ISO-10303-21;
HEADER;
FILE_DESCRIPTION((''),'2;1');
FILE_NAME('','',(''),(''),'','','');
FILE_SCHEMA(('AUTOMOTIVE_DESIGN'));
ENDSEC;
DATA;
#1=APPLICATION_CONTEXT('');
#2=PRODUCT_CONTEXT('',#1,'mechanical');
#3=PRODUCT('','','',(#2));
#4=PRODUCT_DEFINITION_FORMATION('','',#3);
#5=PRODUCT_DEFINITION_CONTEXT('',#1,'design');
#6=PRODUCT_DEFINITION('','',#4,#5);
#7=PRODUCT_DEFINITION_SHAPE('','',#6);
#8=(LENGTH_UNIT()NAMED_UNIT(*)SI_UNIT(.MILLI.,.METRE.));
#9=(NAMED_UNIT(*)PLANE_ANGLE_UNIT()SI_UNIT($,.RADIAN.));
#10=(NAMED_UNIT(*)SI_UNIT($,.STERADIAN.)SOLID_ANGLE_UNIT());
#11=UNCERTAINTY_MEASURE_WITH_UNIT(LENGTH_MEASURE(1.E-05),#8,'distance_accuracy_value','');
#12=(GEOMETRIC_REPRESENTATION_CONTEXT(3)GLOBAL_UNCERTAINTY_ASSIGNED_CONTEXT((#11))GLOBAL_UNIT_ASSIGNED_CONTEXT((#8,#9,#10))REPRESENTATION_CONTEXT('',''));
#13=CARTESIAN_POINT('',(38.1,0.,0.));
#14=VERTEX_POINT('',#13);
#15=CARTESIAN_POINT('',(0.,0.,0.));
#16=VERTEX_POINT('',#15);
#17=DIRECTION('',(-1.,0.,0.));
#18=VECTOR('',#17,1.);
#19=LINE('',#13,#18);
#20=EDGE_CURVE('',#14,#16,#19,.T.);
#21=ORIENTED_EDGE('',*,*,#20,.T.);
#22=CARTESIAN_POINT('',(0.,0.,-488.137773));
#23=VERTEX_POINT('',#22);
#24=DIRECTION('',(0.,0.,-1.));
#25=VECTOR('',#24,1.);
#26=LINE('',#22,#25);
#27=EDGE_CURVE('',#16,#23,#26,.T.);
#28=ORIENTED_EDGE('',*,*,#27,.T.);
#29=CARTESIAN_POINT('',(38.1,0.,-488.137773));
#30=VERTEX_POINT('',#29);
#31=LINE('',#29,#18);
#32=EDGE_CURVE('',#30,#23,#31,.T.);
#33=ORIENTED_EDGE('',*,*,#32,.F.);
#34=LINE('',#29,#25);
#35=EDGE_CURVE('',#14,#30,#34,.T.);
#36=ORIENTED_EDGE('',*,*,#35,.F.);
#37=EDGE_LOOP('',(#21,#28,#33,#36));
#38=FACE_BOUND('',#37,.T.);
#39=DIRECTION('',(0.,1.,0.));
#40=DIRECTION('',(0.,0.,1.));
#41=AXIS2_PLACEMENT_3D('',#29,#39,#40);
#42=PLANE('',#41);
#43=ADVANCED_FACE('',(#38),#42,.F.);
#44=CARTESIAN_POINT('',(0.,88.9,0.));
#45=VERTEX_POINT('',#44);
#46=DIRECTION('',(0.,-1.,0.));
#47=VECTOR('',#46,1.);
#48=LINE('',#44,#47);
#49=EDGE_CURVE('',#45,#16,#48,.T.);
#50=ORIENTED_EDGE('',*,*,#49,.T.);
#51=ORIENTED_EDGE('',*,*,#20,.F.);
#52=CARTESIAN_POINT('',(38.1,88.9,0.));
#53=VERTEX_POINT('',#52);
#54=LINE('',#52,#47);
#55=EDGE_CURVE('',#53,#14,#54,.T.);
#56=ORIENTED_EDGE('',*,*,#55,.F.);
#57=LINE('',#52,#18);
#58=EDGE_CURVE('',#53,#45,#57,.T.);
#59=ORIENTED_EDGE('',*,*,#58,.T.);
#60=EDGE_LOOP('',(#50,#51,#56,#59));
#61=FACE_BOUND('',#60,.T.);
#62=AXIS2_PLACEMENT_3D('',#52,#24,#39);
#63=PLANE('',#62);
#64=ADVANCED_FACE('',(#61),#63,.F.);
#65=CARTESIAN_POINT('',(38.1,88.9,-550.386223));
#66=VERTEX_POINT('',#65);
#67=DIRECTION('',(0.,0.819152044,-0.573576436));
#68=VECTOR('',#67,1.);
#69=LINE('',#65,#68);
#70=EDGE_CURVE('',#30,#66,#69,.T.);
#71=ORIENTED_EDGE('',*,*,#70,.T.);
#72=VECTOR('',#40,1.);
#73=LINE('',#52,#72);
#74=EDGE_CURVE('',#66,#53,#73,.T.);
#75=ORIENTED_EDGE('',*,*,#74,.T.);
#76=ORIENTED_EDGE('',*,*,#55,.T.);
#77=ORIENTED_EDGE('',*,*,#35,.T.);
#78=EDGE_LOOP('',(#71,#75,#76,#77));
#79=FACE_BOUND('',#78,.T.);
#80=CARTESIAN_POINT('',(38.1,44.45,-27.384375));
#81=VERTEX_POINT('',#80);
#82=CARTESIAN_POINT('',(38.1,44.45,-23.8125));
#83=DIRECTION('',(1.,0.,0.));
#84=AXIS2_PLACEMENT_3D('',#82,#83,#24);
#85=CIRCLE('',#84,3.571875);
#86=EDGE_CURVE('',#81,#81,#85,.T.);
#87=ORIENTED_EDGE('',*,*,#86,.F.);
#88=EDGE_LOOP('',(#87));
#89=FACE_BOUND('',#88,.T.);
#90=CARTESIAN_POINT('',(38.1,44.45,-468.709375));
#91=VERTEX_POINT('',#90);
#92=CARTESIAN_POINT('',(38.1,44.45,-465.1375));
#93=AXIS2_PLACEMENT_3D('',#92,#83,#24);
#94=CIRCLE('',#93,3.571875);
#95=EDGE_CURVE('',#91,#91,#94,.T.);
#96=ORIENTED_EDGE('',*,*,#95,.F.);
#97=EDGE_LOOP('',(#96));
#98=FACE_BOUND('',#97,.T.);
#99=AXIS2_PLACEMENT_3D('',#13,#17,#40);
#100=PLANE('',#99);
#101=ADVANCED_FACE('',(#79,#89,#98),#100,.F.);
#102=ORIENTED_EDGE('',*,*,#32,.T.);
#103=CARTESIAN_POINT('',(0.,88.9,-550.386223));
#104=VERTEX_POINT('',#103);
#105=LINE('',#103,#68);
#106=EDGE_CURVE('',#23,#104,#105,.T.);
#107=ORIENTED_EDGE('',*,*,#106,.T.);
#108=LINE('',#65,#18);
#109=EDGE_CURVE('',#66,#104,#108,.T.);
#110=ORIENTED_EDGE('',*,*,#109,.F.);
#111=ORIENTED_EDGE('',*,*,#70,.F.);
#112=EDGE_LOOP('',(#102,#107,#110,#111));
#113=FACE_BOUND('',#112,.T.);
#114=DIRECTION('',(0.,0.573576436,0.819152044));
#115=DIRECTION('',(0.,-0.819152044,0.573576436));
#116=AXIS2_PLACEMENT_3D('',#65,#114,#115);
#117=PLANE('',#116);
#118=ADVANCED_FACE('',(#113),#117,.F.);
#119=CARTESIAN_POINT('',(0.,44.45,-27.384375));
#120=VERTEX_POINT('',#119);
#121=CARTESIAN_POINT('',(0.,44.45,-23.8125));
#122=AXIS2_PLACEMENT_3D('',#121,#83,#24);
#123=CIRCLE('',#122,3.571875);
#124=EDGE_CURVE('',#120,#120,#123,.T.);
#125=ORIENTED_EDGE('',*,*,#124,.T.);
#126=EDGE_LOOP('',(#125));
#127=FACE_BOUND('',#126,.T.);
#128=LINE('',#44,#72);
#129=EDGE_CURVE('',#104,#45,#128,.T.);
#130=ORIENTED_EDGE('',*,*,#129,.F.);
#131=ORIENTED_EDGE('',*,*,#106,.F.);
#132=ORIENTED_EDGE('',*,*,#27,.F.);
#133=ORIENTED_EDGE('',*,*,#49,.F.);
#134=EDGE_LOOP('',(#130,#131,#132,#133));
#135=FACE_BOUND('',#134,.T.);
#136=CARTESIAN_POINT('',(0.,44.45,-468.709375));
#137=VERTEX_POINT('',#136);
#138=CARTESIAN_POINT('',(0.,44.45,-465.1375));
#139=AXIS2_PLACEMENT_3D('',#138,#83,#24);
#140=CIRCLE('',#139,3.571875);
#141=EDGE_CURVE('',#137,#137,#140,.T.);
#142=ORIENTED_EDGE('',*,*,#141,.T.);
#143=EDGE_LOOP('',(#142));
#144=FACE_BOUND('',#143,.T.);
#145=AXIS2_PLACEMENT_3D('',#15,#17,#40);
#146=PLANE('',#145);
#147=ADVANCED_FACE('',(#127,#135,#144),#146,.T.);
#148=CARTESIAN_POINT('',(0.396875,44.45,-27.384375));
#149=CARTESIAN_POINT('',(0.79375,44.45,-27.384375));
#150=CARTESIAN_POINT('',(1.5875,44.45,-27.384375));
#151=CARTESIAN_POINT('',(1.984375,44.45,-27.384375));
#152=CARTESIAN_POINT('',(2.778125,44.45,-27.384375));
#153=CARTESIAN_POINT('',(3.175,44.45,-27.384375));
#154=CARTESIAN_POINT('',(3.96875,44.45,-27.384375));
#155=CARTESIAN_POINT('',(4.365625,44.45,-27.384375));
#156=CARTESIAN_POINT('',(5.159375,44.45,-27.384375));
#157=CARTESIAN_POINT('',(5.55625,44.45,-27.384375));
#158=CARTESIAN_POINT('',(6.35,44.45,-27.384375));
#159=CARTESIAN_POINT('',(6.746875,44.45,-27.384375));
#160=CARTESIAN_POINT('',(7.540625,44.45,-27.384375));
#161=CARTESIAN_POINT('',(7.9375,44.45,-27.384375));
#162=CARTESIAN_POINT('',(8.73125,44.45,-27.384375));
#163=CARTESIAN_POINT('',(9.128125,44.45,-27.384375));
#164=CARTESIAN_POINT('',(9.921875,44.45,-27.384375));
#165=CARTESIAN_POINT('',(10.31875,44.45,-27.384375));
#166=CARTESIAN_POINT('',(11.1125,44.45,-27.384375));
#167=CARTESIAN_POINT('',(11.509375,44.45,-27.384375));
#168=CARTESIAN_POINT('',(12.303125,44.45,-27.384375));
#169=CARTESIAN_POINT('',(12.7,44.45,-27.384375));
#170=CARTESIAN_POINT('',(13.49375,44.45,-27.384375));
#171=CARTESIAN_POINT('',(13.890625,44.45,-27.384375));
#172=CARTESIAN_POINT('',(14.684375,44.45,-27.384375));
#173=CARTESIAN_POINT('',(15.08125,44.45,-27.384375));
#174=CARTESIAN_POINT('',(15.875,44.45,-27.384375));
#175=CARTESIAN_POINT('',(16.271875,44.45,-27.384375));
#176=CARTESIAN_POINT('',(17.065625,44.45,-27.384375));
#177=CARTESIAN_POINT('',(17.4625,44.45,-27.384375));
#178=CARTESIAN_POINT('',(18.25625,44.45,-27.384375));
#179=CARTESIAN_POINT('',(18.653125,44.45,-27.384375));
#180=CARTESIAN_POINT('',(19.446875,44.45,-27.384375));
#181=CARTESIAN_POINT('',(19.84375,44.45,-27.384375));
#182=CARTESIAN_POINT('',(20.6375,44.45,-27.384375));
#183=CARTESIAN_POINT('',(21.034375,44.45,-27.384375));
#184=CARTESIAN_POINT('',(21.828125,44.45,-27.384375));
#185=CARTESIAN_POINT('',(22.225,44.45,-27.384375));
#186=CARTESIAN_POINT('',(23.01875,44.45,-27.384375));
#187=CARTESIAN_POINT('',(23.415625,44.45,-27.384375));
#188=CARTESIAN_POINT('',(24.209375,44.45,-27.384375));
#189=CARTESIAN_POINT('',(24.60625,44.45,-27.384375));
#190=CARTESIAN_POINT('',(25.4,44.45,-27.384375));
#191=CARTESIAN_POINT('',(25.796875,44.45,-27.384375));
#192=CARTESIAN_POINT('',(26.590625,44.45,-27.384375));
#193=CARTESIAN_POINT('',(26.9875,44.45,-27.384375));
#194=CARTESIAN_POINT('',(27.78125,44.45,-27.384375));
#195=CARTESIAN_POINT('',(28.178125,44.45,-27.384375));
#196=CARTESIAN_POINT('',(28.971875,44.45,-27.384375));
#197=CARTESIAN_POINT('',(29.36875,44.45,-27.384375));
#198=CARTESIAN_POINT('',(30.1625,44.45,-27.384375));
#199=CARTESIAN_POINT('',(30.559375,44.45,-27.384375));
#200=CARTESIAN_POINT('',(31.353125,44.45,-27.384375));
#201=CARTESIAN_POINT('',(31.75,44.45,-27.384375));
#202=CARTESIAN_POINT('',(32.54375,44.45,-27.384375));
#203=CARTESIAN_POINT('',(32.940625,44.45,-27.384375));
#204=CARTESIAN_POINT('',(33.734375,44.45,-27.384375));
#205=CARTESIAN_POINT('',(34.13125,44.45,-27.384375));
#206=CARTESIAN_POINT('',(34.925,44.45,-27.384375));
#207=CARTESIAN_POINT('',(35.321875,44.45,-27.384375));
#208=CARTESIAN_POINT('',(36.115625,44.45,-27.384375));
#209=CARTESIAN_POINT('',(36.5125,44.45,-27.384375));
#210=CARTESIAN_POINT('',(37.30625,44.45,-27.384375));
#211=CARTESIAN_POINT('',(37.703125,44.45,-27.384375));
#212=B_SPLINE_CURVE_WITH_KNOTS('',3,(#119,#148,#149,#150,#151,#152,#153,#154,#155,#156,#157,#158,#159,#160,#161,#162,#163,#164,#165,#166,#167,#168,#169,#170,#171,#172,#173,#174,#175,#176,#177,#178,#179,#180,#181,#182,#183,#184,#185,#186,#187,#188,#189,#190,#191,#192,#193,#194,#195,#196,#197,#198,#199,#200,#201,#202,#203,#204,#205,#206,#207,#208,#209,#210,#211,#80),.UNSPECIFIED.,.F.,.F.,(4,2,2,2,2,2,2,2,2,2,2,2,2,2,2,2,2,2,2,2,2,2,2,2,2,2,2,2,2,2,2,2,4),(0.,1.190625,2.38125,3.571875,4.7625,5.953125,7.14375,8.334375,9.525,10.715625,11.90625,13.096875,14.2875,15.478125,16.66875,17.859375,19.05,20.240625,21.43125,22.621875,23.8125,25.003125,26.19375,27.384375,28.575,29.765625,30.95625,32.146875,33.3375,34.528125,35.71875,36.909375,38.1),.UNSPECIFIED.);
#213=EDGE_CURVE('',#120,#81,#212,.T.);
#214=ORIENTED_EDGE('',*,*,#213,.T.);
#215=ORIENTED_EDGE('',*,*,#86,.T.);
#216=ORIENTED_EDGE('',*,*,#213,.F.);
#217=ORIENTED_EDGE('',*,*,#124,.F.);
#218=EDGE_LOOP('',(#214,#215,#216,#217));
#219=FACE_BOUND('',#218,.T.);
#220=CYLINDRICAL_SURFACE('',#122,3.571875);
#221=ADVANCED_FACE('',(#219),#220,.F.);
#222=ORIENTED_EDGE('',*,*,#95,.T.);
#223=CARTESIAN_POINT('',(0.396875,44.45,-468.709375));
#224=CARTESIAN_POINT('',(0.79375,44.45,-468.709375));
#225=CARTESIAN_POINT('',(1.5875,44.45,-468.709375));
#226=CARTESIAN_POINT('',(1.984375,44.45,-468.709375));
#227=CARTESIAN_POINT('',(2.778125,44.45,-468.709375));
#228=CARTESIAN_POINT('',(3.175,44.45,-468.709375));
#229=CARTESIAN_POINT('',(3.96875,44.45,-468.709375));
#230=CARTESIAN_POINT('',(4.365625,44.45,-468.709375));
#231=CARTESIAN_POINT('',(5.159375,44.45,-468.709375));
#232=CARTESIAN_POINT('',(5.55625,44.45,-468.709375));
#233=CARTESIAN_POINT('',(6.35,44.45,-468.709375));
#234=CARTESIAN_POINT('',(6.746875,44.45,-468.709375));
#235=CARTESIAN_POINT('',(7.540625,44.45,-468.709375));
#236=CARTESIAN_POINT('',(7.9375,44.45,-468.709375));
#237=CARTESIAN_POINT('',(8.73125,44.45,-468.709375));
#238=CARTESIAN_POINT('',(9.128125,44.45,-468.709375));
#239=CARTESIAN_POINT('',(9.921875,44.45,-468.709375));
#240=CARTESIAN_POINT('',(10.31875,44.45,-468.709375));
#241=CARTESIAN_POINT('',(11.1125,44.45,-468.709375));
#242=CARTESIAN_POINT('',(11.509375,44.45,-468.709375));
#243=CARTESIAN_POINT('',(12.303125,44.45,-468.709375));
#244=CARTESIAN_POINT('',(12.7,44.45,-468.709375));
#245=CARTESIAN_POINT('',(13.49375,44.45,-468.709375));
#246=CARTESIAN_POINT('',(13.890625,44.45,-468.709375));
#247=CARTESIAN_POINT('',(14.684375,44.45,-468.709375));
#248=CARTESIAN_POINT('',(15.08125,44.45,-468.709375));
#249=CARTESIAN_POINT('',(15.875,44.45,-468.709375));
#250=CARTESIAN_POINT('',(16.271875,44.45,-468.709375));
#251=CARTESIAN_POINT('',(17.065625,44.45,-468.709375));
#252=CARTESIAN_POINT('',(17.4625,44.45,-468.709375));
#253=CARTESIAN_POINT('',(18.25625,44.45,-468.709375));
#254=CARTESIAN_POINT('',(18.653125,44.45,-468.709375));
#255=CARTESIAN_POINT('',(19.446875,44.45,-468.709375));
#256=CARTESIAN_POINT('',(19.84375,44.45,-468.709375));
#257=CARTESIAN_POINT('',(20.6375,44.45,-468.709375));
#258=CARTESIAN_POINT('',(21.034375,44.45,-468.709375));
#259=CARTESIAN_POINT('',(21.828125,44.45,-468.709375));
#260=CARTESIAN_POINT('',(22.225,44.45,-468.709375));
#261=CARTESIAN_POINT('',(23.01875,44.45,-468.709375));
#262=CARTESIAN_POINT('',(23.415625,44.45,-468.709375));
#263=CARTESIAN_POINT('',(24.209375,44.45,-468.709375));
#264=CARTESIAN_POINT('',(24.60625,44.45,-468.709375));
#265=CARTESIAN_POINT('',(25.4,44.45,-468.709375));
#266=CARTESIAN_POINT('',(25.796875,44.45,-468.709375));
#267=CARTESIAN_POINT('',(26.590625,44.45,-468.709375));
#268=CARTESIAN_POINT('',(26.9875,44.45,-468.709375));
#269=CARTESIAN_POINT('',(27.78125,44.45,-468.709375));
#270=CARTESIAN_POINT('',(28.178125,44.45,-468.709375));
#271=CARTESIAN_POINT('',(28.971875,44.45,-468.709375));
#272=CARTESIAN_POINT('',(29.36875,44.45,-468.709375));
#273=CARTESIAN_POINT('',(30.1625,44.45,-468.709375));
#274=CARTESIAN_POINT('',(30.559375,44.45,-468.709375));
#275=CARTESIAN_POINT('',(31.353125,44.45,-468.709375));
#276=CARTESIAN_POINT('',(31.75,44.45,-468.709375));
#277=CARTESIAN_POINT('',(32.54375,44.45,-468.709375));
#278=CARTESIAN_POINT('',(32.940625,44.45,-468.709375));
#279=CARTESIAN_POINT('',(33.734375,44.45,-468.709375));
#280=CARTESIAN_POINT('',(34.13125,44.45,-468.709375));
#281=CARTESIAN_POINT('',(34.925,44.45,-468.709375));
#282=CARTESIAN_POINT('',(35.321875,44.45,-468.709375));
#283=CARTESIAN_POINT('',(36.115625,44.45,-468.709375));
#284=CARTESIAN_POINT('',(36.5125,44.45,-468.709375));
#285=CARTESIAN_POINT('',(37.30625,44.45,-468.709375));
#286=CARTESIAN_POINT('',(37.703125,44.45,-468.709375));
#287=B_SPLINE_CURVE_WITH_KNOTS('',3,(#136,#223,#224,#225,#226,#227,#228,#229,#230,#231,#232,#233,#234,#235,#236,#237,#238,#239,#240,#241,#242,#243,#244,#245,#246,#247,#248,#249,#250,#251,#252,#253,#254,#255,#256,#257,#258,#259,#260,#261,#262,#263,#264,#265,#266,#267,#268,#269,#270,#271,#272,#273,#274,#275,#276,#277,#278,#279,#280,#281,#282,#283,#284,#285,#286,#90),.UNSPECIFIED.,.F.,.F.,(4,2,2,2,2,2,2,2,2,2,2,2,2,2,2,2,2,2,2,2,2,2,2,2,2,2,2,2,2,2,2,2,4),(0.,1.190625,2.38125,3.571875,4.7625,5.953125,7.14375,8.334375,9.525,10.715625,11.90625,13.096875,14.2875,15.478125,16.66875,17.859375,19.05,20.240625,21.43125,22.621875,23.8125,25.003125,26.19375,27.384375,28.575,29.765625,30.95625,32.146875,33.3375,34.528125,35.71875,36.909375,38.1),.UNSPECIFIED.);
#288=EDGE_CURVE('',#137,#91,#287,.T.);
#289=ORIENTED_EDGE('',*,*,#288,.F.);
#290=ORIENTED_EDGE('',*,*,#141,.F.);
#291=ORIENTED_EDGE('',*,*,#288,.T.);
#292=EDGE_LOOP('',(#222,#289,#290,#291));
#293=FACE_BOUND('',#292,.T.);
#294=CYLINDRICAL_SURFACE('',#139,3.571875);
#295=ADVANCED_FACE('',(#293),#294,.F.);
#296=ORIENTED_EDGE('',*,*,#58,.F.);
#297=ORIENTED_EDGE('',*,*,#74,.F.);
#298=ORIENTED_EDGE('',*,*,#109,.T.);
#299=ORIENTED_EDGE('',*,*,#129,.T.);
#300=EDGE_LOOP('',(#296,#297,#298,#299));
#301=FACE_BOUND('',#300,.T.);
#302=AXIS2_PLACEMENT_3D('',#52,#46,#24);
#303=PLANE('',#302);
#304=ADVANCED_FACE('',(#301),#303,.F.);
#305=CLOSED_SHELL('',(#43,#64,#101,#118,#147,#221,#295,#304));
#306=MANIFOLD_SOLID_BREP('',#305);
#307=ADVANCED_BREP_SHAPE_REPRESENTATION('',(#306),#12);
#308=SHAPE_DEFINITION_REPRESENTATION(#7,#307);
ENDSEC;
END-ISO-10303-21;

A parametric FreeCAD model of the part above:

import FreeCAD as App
import Part
import Sketcher
Q = App.Units.Quantity

doc = App.newDocument("Part")
body = doc.addObject("PartDesign::Body", "Body")

# Sketch on YZ plane
sketch1 = body.newObject("Sketcher::SketchObject", "Sketch")
sketch1.AttachmentSupport = (doc.getObject("YZ_Plane"), [""])
sketch1.MapMode = "FlatFace"
sketch1.addGeometry(Part.LineSegment(App.Vector(89, -550, 0), App.Vector(89, 0, 0)), False)
sketch1.addGeometry(Part.LineSegment(App.Vector(89, 0, 0), App.Vector(0, 0, 0)), False)
sketch1.addGeometry(Part.LineSegment(App.Vector(0, 0, 0), App.Vector(0, -488, 0)), False)
sketch1.addGeometry(Part.LineSegment(App.Vector(0, -488, 0), App.Vector(89, -550, 0)), False)
sketch1.addConstraint(Sketcher.Constraint("Coincident", 0, 2, 1, 1))
sketch1.addConstraint(Sketcher.Constraint("Coincident", 1, 2, 2, 1))
sketch1.addConstraint(Sketcher.Constraint("Coincident", 2, 2, 3, 1))
sketch1.addConstraint(Sketcher.Constraint("Coincident", 3, 2, 0, 1))
sketch1.addConstraint(Sketcher.Constraint("Vertical", 0))
sketch1.addConstraint(Sketcher.Constraint("Horizontal", 1))
sketch1.addConstraint(Sketcher.Constraint("Vertical", 2))
sketch1.addConstraint(Sketcher.Constraint("Coincident", 1, 2, -1, 1))
sketch1.addConstraint(Sketcher.Constraint("DistanceX", 1, 2, 1, 1, Q("3.5 in")))
sketch1.addConstraint(Sketcher.Constraint("Angle", 3, Q("-35 deg")))
sketch1.addConstraint(Sketcher.Constraint("DistanceY", 0, 1, 0, 2, 550.386223))
pad1 = body.newObject("PartDesign::Pad", "Pad")
pad1.Profile = sketch1
pad1.Length = Q("1.5 in")

# Sketch on YZ plane
sketch2 = body.newObject("Sketcher::SketchObject", "Sketch001")
sketch2.AttachmentSupport = (doc.getObject("YZ_Plane"), [""])
sketch2.MapMode = "FlatFace"
sketch2.AttachmentOffset = App.Placement(App.Vector(0, 0, 1.5 * 25.4), App.Rotation())
sketch2.addGeometry(Part.Circle(App.Vector(44.5, -23.8, 0), App.Vector(0, 0, 1), 3.6), False)
sketch2.addGeometry(Part.Circle(App.Vector(44.5, -465.1, 0), App.Vector(0, 0, 1), 3.6), False)
sketch2.addConstraint(Sketcher.Constraint("Equal", 0, 1))
sketch2.addConstraint(Sketcher.Constraint("Vertical", 0, 3, 1, 3))
sketch2.addConstraint(Sketcher.Constraint("Diameter", 0, Q("0.28125 in")))
sketch2.addConstraint(Sketcher.Constraint("DistanceX", -1, 1, 0, 3, Q("1.75 in")))
sketch2.addConstraint(Sketcher.Constraint("DistanceY", 0, 3, -1, 1, Q("0.9375 in")))
sketch2.addConstraint(Sketcher.Constraint("DistanceY", 1, 3, -1, 1, Q("18.3125 in")))
pocket1 = body.newObject("PartDesign::Pocket", "Pocket")
pocket1.Profile = sketch2
pocket1.Type = "ThroughAll"

doc.recompute()
